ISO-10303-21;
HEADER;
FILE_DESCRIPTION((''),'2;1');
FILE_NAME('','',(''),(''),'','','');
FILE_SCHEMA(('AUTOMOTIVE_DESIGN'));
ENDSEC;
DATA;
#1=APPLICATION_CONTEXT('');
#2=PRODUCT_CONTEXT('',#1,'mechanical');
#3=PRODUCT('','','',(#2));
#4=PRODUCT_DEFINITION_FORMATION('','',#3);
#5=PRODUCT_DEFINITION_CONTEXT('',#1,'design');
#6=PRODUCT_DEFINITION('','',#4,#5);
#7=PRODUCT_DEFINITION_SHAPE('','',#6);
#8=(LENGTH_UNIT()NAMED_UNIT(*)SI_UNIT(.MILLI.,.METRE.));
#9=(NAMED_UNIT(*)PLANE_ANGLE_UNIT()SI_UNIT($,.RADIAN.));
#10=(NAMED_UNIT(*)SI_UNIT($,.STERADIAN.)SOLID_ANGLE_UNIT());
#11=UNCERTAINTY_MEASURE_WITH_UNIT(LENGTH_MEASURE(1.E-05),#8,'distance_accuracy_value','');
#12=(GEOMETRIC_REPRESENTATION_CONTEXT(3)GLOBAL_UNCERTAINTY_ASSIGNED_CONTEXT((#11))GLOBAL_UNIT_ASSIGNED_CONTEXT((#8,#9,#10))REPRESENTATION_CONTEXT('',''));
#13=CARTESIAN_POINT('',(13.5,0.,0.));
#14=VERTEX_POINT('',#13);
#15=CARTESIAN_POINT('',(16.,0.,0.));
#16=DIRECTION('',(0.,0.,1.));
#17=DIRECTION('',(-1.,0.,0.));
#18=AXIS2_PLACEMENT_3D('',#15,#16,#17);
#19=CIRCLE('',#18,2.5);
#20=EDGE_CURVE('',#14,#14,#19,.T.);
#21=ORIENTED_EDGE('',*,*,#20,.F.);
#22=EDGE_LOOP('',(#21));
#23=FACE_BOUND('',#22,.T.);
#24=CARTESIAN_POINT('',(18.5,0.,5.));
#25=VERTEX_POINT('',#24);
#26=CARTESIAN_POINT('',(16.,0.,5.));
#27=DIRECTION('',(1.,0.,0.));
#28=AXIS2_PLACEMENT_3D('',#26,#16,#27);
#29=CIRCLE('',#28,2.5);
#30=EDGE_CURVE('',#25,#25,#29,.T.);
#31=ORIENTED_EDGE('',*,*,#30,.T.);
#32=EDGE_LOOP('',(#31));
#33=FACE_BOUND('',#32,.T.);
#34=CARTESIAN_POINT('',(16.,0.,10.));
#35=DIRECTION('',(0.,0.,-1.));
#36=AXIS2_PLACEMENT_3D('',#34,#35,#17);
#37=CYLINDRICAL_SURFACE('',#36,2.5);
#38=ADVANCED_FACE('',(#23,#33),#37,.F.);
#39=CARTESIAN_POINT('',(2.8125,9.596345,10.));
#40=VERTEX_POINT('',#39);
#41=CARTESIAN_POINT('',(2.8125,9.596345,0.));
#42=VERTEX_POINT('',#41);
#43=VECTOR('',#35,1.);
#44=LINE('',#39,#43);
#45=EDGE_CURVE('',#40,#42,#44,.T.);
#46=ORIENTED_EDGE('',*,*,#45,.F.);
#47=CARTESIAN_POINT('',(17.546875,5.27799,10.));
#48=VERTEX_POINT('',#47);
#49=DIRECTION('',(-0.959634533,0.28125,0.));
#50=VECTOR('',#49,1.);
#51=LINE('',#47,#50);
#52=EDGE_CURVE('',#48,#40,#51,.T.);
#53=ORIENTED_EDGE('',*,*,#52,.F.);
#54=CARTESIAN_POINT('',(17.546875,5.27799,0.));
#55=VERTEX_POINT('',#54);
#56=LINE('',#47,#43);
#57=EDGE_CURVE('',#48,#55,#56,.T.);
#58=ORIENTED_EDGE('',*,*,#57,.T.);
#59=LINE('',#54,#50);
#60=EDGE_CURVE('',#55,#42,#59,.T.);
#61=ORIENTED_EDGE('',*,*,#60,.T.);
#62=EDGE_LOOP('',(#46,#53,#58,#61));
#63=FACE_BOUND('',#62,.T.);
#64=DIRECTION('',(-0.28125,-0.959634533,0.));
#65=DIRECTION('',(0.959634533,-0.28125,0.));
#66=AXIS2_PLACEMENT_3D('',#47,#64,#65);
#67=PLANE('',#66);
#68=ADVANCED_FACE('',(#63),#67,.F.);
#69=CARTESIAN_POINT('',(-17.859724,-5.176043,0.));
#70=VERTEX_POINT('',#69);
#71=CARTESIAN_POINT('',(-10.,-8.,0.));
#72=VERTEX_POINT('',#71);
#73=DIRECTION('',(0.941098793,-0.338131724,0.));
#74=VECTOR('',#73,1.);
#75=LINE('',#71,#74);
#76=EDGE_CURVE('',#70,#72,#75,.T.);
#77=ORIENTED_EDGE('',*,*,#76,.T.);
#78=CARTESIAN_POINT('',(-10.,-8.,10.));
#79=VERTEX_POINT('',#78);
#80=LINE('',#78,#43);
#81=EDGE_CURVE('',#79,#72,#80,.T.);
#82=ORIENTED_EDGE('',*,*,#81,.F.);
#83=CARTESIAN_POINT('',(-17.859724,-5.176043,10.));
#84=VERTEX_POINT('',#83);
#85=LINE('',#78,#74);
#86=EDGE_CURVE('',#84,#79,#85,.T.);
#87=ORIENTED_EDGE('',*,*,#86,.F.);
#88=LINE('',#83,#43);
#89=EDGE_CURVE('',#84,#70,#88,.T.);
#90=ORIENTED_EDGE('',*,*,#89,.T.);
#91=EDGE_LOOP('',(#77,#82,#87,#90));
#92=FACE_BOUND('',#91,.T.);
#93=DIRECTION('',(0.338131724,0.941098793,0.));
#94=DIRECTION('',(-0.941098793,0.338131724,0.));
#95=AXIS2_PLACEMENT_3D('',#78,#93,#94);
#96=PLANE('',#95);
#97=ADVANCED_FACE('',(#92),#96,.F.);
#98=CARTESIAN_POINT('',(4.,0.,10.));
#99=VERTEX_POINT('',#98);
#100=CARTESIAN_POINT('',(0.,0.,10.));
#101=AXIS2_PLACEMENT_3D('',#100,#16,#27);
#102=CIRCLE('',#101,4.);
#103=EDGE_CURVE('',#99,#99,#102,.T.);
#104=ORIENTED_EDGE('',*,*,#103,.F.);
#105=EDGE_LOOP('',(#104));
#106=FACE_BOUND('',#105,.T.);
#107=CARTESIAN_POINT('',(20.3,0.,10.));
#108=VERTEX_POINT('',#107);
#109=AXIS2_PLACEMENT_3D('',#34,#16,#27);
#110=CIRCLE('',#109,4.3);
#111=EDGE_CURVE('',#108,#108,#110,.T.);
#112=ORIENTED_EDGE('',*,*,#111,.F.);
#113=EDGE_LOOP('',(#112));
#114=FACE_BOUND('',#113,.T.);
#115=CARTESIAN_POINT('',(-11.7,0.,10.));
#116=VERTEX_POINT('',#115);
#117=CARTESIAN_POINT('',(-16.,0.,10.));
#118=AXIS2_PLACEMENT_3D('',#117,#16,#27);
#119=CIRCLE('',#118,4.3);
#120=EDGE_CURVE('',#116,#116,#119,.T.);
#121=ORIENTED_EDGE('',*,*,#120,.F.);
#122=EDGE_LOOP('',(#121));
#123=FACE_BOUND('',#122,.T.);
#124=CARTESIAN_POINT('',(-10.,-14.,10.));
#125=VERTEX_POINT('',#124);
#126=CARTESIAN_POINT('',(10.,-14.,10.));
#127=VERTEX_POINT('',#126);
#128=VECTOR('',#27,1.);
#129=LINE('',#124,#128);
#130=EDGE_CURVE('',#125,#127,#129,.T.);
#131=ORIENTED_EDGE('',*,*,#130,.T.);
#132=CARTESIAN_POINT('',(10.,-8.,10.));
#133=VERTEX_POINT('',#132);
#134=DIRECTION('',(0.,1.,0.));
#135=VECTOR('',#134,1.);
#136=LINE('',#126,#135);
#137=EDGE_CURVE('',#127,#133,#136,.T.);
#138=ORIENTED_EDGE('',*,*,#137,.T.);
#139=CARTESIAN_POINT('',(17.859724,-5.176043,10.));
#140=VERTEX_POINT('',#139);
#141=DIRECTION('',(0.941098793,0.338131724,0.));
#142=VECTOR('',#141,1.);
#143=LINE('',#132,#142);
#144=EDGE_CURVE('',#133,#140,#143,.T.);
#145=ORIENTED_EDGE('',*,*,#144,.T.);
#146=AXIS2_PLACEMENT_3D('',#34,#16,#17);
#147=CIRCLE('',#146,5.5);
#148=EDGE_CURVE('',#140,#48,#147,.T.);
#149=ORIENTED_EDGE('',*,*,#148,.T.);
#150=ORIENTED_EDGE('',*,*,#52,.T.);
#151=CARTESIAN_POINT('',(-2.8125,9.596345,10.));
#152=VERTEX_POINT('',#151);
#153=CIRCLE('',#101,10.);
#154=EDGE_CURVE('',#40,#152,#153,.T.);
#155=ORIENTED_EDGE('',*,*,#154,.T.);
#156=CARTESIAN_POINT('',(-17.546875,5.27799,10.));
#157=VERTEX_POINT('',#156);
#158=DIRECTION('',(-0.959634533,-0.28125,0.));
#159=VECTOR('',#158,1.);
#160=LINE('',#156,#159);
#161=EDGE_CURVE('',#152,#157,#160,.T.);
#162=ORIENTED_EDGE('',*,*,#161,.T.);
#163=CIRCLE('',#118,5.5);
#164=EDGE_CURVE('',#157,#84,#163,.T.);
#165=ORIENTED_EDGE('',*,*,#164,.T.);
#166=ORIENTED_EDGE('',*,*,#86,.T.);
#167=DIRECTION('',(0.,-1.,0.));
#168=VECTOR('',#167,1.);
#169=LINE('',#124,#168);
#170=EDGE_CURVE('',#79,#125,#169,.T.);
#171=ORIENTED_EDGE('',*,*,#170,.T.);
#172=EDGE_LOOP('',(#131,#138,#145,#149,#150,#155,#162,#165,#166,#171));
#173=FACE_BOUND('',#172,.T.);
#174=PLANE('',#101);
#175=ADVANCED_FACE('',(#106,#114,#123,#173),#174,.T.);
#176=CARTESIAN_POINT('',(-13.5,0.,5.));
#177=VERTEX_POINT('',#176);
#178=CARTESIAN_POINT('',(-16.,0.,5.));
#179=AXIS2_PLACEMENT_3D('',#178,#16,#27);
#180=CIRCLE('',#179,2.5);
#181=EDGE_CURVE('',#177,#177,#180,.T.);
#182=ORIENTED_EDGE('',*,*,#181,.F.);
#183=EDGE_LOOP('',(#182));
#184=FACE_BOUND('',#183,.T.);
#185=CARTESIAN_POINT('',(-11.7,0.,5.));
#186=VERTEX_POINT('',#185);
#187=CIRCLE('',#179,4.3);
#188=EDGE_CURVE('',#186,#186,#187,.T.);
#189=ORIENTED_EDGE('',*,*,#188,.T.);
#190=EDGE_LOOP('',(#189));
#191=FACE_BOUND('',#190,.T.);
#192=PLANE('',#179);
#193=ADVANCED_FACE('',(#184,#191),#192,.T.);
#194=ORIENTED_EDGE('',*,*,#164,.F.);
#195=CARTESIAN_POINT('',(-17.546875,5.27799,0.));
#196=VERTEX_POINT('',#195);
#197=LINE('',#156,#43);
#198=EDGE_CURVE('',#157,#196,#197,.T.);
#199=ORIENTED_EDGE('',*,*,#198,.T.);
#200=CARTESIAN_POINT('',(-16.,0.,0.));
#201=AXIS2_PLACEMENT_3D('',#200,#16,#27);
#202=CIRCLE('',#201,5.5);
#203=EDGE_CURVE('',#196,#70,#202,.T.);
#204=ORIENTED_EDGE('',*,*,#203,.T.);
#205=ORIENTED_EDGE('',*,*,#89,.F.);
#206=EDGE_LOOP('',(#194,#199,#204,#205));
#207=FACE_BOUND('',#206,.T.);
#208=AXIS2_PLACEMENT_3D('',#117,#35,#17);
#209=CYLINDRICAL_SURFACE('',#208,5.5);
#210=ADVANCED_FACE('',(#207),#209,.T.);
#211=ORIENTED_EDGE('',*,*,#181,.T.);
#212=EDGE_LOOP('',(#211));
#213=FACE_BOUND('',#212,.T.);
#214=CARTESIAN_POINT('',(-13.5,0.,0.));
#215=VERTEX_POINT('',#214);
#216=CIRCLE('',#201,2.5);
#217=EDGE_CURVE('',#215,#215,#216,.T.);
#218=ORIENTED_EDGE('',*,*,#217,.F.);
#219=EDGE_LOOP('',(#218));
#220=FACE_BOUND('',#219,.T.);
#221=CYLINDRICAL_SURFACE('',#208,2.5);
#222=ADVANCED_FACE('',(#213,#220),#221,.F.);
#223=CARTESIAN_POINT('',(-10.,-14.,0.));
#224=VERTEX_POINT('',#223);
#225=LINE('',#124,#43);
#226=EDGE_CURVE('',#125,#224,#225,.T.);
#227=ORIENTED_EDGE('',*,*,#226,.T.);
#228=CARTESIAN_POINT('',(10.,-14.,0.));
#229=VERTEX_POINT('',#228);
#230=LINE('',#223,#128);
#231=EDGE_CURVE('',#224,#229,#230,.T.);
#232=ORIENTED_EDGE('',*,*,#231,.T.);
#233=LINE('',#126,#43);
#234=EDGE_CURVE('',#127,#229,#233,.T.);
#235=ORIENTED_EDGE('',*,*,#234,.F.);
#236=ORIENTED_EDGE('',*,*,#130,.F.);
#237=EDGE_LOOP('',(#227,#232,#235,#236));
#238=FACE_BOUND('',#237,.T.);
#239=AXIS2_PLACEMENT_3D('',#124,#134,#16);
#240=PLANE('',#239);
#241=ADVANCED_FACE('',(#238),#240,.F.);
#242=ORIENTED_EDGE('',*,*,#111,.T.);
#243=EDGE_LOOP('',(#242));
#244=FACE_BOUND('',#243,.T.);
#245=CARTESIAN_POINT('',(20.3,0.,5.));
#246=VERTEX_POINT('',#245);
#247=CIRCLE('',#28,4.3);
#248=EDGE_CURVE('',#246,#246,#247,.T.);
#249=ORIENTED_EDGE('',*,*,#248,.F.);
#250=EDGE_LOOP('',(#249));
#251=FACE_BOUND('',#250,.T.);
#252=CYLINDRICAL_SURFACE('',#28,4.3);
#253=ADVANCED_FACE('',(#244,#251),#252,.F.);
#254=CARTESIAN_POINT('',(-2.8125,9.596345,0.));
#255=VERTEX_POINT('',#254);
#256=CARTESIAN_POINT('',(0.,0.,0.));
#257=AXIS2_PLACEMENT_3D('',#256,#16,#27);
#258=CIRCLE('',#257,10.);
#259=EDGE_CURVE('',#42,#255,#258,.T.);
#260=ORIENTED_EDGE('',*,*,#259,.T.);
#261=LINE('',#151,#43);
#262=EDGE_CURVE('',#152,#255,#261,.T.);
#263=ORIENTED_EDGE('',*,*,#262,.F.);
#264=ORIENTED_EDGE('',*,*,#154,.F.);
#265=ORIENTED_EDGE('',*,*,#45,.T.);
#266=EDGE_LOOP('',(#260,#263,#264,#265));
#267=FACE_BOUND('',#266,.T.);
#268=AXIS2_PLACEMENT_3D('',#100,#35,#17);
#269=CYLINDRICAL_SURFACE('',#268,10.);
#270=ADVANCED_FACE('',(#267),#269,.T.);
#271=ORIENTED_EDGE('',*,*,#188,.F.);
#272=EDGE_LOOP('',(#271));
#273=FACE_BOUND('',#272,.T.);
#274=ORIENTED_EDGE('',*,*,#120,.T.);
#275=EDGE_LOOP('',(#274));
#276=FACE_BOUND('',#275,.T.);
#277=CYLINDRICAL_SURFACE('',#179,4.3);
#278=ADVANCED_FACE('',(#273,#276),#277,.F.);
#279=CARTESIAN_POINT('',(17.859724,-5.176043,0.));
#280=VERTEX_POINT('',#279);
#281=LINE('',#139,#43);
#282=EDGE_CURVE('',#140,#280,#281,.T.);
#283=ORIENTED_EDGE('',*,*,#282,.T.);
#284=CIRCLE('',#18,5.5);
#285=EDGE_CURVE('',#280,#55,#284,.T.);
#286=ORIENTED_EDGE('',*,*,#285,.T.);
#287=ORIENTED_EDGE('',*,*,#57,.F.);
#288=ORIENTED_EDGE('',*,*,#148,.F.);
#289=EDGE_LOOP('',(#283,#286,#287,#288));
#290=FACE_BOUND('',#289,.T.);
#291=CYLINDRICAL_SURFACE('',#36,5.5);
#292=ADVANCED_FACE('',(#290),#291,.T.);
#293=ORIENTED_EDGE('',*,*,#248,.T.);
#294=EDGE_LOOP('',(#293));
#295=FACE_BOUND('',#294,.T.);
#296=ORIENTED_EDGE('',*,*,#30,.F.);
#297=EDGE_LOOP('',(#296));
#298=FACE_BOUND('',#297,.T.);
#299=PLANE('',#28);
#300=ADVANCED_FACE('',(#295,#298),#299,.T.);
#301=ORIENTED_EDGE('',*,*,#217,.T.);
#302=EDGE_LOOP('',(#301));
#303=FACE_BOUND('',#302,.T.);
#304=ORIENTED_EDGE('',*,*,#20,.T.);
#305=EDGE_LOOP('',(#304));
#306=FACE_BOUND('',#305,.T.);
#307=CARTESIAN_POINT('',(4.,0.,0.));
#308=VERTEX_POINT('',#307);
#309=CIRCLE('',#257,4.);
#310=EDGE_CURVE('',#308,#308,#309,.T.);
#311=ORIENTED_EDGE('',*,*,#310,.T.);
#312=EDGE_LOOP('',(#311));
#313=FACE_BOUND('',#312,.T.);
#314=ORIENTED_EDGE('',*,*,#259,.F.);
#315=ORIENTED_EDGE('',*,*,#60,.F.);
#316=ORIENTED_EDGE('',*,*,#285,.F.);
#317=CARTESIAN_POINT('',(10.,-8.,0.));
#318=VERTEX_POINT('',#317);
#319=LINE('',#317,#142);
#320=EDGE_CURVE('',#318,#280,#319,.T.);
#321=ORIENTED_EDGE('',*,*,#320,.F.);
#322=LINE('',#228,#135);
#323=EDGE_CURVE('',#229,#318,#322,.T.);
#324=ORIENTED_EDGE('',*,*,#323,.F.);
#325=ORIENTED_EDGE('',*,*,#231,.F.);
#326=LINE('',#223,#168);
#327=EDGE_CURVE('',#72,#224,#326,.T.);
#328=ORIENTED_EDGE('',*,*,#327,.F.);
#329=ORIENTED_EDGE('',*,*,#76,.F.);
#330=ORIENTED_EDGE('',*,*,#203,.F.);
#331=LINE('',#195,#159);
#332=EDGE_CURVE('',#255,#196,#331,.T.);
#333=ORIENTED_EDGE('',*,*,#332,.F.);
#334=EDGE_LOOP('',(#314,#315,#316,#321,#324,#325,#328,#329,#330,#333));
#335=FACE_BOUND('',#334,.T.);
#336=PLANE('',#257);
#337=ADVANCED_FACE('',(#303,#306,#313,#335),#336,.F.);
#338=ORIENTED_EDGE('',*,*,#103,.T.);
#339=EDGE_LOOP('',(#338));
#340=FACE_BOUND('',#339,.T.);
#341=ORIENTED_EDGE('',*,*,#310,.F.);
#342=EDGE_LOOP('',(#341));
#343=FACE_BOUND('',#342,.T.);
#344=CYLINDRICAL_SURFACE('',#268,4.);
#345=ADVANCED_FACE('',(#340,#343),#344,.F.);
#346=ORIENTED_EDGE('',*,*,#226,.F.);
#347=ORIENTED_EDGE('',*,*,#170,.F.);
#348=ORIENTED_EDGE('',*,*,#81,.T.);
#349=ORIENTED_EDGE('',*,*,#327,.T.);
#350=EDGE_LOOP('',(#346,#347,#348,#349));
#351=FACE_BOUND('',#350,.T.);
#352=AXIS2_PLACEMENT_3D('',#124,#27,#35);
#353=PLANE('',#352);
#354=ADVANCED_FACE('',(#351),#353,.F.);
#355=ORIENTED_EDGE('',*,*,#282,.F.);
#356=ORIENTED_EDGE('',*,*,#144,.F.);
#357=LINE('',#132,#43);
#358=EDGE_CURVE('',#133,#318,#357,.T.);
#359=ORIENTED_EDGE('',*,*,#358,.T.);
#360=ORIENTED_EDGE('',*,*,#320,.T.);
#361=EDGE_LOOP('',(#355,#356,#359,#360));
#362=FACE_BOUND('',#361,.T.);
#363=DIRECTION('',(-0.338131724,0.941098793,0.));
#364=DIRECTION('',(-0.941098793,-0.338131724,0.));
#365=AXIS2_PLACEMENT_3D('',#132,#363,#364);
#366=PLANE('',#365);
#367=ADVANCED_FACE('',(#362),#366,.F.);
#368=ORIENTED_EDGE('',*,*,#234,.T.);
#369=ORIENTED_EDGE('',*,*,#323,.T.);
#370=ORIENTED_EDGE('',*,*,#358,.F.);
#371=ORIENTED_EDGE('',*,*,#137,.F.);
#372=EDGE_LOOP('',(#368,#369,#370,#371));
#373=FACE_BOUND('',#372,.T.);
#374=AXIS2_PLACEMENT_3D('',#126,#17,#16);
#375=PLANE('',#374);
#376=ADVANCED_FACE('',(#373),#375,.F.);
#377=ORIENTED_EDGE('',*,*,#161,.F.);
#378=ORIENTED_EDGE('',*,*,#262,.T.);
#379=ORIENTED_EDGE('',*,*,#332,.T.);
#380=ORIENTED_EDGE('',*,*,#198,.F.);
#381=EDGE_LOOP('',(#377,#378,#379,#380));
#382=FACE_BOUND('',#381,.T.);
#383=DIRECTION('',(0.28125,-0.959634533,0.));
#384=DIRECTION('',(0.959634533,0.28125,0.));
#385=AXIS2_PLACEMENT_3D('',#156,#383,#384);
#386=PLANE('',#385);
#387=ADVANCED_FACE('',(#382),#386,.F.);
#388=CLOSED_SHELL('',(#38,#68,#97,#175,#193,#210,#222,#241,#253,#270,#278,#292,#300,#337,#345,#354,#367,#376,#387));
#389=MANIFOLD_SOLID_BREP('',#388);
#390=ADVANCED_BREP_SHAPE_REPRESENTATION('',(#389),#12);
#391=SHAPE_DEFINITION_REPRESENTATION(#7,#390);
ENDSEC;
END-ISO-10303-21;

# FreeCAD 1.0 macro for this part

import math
import FreeCAD as App
import Part
import Sketcher

V = App.Vector

doc = App.newDocument("Part")
body = doc.addObject("PartDesign::Body", "Body")

# Sketch on XY plane
sketch1 = body.newObject("Sketcher::SketchObject", "Sketch")
sketch1.AttachmentSupport = (doc.getObject("XY_Plane"), [""])
sketch1.MapMode = "FlatFace"
sketch1.addGeometry(Part.LineSegment(V(-10, -8, 0), V(-10, -14, 0)), False)
sketch1.addGeometry(Part.LineSegment(V(-10, -14, 0), V(10, -14, 0)), False)
sketch1.addGeometry(Part.LineSegment(V(10, -14, 0), V(10, -8, 0)), False)
sketch1.addGeometry(Part.LineSegment(V(10, -8, 0), V(17.859724, -5.176043, 0)), False)
sketch1.addGeometry(Part.ArcOfCircle(Part.Circle(V(16, 0, 0), V(0, 0, 1), 5.5), math.radians(-70.236911), math.radians(73.665177)), False)
sketch1.addGeometry(Part.LineSegment(V(17.546875, 5.27799, 0), V(2.8125, 9.596345, 0)), False)
sketch1.addGeometry(Part.ArcOfCircle(Part.Circle(V(0, 0, 0), V(0, 0, 1), 10), math.radians(73.665177), math.radians(106.334823)), False)
sketch1.addGeometry(Part.LineSegment(V(-2.8125, 9.596345, 0), V(-17.546875, 5.27799, 0)), False)
sketch1.addGeometry(Part.ArcOfCircle(Part.Circle(V(-16, 0, 0), V(0, 0, 1), 5.5), math.radians(106.334823), math.radians(250.236911)), False)
sketch1.addGeometry(Part.LineSegment(V(-17.859724, -5.176043, 0), V(-10, -8, 0)), False)
sketch1.addGeometry(Part.Circle(V(16, 0, 0), V(0, 0, 1), 2.5), False)
sketch1.addGeometry(Part.Circle(V(0, 0, 0), V(0, 0, 1), 4), False)
sketch1.addGeometry(Part.Circle(V(-16, 0, 0), V(0, 0, 1), 2.5), False)
sketch1.addConstraint(Sketcher.Constraint("Coincident", 0, 2, 1, 1))
sketch1.addConstraint(Sketcher.Constraint("Coincident", 1, 2, 2, 1))
sketch1.addConstraint(Sketcher.Constraint("Coincident", 2, 2, 3, 1))
sketch1.addConstraint(Sketcher.Constraint("Tangent", 3, 2, 4, 1))
sketch1.addConstraint(Sketcher.Constraint("Tangent", 4, 2, 5, 1))
sketch1.addConstraint(Sketcher.Constraint("Tangent", 5, 2, 6, 1))
sketch1.addConstraint(Sketcher.Constraint("Tangent", 6, 2, 7, 1))
sketch1.addConstraint(Sketcher.Constraint("Tangent", 7, 2, 8, 1))
sketch1.addConstraint(Sketcher.Constraint("Tangent", 8, 2, 9, 1))
sketch1.addConstraint(Sketcher.Constraint("Coincident", 9, 2, 0, 1))
sketch1.addConstraint(Sketcher.Constraint("Vertical", 0))
sketch1.addConstraint(Sketcher.Constraint("Horizontal", 1))
sketch1.addConstraint(Sketcher.Constraint("Vertical", 2))
sketch1.addConstraint(Sketcher.Constraint("Coincident", 6, 3, -1, 1))
sketch1.addConstraint(Sketcher.Constraint("Coincident", 11, 3, -1, 1))
sketch1.addConstraint(Sketcher.Constraint("Coincident", 10, 3, 4, 3))
sketch1.addConstraint(Sketcher.Constraint("Coincident", 12, 3, 8, 3))
sketch1.addConstraint(Sketcher.Constraint("Equal", 4, 8))
sketch1.addConstraint(Sketcher.Constraint("Equal", 10, 12))
sketch1.addConstraint(Sketcher.Constraint("Symmetric", 4, 3, 8, 3, -1, 1))
sketch1.addConstraint(Sketcher.Constraint("Symmetric", 3, 2, 8, 2, -2))
sketch1.addConstraint(Sketcher.Constraint("Horizontal", 2, 2, 9, 2))
sketch1.addConstraint(Sketcher.Constraint("Diameter", 10, 5.0))
sketch1.addConstraint(Sketcher.Constraint("Diameter", 11, 8.0))
sketch1.addConstraint(Sketcher.Constraint("Radius", 6, 10.0))
sketch1.addConstraint(Sketcher.Constraint("Radius", 4, 5.5))
sketch1.addConstraint(Sketcher.Constraint("DistanceX", 1, 1, 1, 2, 20.0))
sketch1.addConstraint(Sketcher.Constraint("DistanceY", 0, 2, 0, 1, 6.0))
sketch1.addConstraint(Sketcher.Constraint("DistanceX", -1, 1, 4, 3, 16.0))
sketch1.addConstraint(Sketcher.Constraint("DistanceY", 0, 2, -1, 1, 14.0))
pad1 = body.newObject("PartDesign::Pad", "Pad")
pad1.Profile = sketch1
pad1.Length = 10

# Sketch on XY plane
sketch2 = body.newObject("Sketcher::SketchObject", "Sketch001")
sketch2.AttachmentSupport = (doc.getObject("XY_Plane"), [""])
sketch2.MapMode = "FlatFace"
sketch2.AttachmentOffset = App.Placement(V(0, 0, 10), App.Rotation())
sketch2.addGeometry(Part.Circle(V(-16, 0, 0), V(0, 0, 1), 4.3), False)
sketch2.addGeometry(Part.Circle(V(16, 0, 0), V(0, 0, 1), 4.3), False)
sketch2.addConstraint(Sketcher.Constraint("Equal", 0, 1))
sketch2.addConstraint(Sketcher.Constraint("Symmetric", 0, 3, 1, 3, -1, 1))
sketch2.addConstraint(Sketcher.Constraint("PointOnObject", 0, 3, -1))
sketch2.addConstraint(Sketcher.Constraint("Diameter", 0, 8.6))
sketch2.addConstraint(Sketcher.Constraint("DistanceX", 0, 3, -1, 1, 16.0))
pocket1 = body.newObject("PartDesign::Pocket", "Pocket")
pocket1.Profile = sketch2
pocket1.Length = 5

doc.recompute()
